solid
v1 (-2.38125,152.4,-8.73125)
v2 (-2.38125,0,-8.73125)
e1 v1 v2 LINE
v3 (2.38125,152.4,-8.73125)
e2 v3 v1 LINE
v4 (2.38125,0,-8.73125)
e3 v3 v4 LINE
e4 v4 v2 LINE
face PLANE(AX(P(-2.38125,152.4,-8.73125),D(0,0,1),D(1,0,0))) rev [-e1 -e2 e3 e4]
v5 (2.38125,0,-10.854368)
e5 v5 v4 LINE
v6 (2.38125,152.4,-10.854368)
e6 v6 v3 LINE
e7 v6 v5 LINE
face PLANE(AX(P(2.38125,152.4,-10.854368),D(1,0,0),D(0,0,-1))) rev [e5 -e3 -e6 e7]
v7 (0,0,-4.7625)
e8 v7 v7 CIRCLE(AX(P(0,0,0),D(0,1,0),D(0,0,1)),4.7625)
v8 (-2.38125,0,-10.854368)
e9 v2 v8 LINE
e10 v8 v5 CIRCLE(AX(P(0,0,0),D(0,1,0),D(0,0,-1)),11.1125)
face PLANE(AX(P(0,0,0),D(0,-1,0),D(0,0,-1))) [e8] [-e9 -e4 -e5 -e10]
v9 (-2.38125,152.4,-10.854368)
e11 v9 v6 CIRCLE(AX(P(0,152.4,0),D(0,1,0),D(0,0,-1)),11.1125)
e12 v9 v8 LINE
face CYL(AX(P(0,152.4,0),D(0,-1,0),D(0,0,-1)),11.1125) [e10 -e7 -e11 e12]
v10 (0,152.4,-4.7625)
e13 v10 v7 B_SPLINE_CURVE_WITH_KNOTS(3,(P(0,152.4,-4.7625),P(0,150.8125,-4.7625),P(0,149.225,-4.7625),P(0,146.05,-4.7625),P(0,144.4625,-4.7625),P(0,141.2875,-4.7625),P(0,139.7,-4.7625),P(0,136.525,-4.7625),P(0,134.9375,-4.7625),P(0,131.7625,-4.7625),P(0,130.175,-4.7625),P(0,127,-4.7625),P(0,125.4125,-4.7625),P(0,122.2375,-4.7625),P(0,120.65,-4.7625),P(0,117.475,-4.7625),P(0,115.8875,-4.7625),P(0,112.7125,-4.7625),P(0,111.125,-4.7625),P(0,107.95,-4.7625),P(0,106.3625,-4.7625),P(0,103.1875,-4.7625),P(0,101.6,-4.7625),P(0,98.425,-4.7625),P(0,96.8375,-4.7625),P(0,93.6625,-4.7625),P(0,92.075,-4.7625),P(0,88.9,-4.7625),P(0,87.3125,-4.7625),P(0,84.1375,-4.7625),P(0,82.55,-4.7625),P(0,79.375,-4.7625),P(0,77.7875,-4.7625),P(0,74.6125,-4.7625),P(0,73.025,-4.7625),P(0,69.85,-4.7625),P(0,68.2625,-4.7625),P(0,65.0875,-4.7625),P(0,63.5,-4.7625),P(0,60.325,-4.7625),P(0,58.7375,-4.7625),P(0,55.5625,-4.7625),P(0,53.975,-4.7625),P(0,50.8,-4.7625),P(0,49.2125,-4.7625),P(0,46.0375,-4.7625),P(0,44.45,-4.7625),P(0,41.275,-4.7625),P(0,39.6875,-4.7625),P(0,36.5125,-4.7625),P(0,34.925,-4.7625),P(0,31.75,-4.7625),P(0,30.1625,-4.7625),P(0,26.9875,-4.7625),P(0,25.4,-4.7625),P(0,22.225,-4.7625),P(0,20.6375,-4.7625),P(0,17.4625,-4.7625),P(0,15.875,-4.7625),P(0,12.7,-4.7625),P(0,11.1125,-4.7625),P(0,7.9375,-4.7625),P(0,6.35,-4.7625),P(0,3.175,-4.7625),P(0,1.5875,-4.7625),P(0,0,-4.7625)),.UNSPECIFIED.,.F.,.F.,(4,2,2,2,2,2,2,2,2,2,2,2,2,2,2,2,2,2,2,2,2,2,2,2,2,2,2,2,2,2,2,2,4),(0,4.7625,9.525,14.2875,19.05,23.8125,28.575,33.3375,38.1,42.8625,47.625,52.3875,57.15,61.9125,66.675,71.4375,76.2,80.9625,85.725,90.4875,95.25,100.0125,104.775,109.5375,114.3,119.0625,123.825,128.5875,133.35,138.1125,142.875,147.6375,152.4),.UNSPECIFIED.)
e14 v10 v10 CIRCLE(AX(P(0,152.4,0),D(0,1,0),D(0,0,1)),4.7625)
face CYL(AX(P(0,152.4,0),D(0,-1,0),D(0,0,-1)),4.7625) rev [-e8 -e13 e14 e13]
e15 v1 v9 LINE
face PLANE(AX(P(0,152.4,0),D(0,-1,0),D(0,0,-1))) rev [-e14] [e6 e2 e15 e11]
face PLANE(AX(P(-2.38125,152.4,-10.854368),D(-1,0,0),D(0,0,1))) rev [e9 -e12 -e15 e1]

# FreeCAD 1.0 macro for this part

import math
import FreeCAD as App
import Part
import Sketcher
from FreeCAD import Vector
Q = App.Units.Quantity

doc = App.newDocument("Part")
body = doc.addObject("PartDesign::Body", "Body")

# Sketch on XZ plane
sketch1 = body.newObject("Sketcher::SketchObject", "Sketch")
sketch1.AttachmentSupport = (doc.getObject("XZ_Plane"), [""])
sketch1.MapMode = "FlatFace"
sketch1.addGeometry(Part.LineSegment(Vector(-2.38125, -8.73125, 0), Vector(-2.38125, -10.854368, 0)), False)
sketch1.addGeometry(Part.ArcOfCircle(Part.Circle(Vector(0, 0, 0), Vector(0, 0, 1), 11.1125), math.radians(-77.626375), math.radians(257.626375)), False)
sketch1.addGeometry(Part.LineSegment(Vector(2.38125, -10.854368, 0), Vector(2.38125, -8.73125, 0)), False)
sketch1.addGeometry(Part.LineSegment(Vector(2.38125, -8.73125, 0), Vector(-2.38125, -8.73125, 0)), False)
sketch1.addGeometry(Part.Circle(Vector(0, 0, 0), Vector(0, 0, 1), 4.7625), False)
sketch1.addConstraint(Sketcher.Constraint("Coincident", 0, 2, 1, 2))
sketch1.addConstraint(Sketcher.Constraint("Coincident", 1, 1, 2, 1))
sketch1.addConstraint(Sketcher.Constraint("Coincident", 2, 2, 3, 1))
sketch1.addConstraint(Sketcher.Constraint("Coincident", 3, 2, 0, 1))
sketch1.addConstraint(Sketcher.Constraint("Vertical", 0))
sketch1.addConstraint(Sketcher.Constraint("Vertical", 2))
sketch1.addConstraint(Sketcher.Constraint("Horizontal", 3))
sketch1.addConstraint(Sketcher.Constraint("Coincident", 1, 3, -1, 1))
sketch1.addConstraint(Sketcher.Constraint("Coincident", 4, 3, -1, 1))
sketch1.addConstraint(Sketcher.Constraint("Horizontal", 0, 2, 1, 1))
sketch1.addConstraint(Sketcher.Constraint("Diameter", 4, Q("0.375 in")))
sketch1.addConstraint(Sketcher.Constraint("Radius", 1, Q("0.4375 in")))
sketch1.addConstraint(Sketcher.Constraint("DistanceX", 3, 2, 3, 1, Q("0.1875 in")))
sketch1.addConstraint(Sketcher.Constraint("DistanceY", 2, 2, -1, 1, Q("0.34375 in")))
pad1 = body.newObject("PartDesign::Pad", "Pad")
pad1.Profile = sketch1
pad1.Length = Q("6 in")
pad1.Reversed = True

doc.recompute()
